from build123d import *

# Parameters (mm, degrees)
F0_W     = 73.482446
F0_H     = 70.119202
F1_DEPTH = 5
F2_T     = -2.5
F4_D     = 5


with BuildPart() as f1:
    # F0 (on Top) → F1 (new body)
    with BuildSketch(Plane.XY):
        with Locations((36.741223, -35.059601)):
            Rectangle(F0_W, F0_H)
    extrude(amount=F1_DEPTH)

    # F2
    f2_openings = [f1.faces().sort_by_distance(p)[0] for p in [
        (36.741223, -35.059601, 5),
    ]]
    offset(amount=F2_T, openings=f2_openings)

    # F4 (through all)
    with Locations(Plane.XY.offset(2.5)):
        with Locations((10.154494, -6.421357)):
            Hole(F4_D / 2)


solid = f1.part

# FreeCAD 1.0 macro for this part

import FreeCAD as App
import Part
import Sketcher
Q = App.Units.Quantity


def faces_at(feature, points):
    """Names of the faces that lie closest to the given points."""
    faces = feature.Shape.Faces
    near = lambda p: min(range(len(faces)), key=lambda i: faces[i].distToShape(Part.Vertex(*p))[0])
    return sorted({f"Face{near(p) + 1}" for p in points})

doc = App.newDocument("Part")
body = doc.addObject("PartDesign::Body", "Body")

sketch1 = doc.addObject("Sketcher::SketchObject", "Sketch")
body.addObject(sketch1)
sketch1.AttachmentSupport = (doc.XY_Plane, [""])
sketch1.MapMode = "FlatFace"
sketch1.addGeometry([
    Part.LineSegment(App.Vector(0, 0, 0), App.Vector(0, -70, 0)),
    Part.LineSegment(App.Vector(0, -70, 0), App.Vector(73, -70, 0)),
    Part.LineSegment(App.Vector(73, -70, 0), App.Vector(73, 0, 0)),
    Part.LineSegment(App.Vector(73, 0, 0), App.Vector(0, 0, 0)),
], False)
sketch1.addConstraint([
    Sketcher.Constraint("Coincident", 0, 2, 1, 1),
    Sketcher.Constraint("Coincident", 1, 2, 2, 1),
    Sketcher.Constraint("Coincident", 2, 2, 3, 1),
    Sketcher.Constraint("Coincident", 3, 2, 0, 1),
    Sketcher.Constraint("Vertical", 0),
    Sketcher.Constraint("Horizontal", 1),
    Sketcher.Constraint("Vertical", 2),
    Sketcher.Constraint("Horizontal", 3),
    Sketcher.Constraint("Coincident", 3, 2, -1, 1),
    Sketcher.Constraint("DistanceY", 0, 2, 0, 1, Q("70.119202 mm")),
    Sketcher.Constraint("DistanceX", 1, 1, 1, 2, Q("73.482446 mm")),
])
pad1 = doc.addObject("PartDesign::Pad", "Pad")
body.addObject(pad1)
pad1.Profile = sketch1
pad1.Length = 5
doc.recompute()

thickness = doc.addObject("PartDesign::Thickness", "Thickness")
body.addObject(thickness)
thickness.Base = (pad1, faces_at(pad1, [(36.741, -35.06, 5)]))
thickness.Value = 2.5
thickness.Reversed = True
thickness.Join = "Arc"

sketch2 = doc.addObject("Sketcher::SketchObject", "Sketch001")
body.addObject(sketch2)
sketch2.AttachmentSupport = (doc.XY_Plane, [""])
sketch2.MapMode = "FlatFace"
sketch2.AttachmentOffset = App.Placement(App.Vector(0, 0, 2.5), App.Rotation())
sketch2.addGeometry(Part.Circle(App.Vector(10.2, -6.4, 0), App.Vector(0, 0, 1), 2.5), False)
sketch2.addConstraint([
    Sketcher.Constraint("Diameter", 0, Q("5 mm")),
    Sketcher.Constraint("DistanceX", -1, 1, 0, 3, Q("10.154494 mm")),
    Sketcher.Constraint("DistanceY", 0, 3, -1, 1, Q("6.421357 mm")),
])
doc.recompute()
hole = doc.addObject("PartDesign::Hole", "Hole")
body.addObject(hole)
hole.Profile = sketch2
hole.ThreadType = "None"
hole.Diameter = 5
hole.DepthType = "ThroughAll"

doc.recompute()
